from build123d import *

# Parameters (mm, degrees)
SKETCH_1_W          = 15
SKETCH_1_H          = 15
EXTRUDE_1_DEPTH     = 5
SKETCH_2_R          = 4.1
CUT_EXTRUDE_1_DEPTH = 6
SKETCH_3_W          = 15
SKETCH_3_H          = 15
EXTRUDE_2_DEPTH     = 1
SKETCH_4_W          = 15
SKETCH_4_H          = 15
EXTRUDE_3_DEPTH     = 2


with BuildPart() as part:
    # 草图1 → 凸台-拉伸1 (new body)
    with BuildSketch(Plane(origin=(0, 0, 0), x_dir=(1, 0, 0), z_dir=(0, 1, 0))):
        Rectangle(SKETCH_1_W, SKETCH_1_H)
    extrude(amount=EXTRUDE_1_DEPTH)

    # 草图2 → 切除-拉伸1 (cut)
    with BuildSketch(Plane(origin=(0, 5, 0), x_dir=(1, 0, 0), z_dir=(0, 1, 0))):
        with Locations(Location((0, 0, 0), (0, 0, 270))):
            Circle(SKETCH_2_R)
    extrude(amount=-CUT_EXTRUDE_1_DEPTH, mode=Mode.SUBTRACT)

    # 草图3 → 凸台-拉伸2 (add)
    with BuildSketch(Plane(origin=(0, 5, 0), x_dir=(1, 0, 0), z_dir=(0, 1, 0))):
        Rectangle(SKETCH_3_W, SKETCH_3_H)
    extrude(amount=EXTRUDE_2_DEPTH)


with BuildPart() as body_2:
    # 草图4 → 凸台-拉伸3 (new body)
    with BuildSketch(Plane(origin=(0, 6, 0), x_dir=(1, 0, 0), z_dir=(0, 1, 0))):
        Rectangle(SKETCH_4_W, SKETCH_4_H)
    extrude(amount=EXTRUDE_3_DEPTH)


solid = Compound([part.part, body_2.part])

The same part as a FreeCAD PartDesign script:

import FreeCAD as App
import Part
import Sketcher
Q = App.Units.Quantity


def add_polygon(sketch, points):
    """Adds a closed chain of lines whose ends are joined by coincident constraints."""
    first, n = sketch.GeometryCount, len(points)
    for a, b in zip(points, points[1:] + points[:1]):
        sketch.addGeometry(Part.LineSegment(App.Vector(*a, 0), App.Vector(*b, 0)), False)
    for i in range(n):
        sketch.addConstraint(Sketcher.Constraint("Coincident", first + i, 2, first + (i + 1) % n, 1))

doc = App.newDocument("Part")
body = doc.addObject("PartDesign::Body", "Body")

# Sketch on XZ plane
sketch1 = body.newObject("Sketcher::SketchObject", "Sketch")
sketch1.AttachmentSupport = (doc.getObject("XZ_Plane"), [""])
sketch1.MapMode = "FlatFace"
add_polygon(sketch1, [(-7.5, -7.5), (-7.5, 7.5), (7.5, 7.5), (7.5, -7.5)])  # lines 0-3
sketch1.addConstraint([
    Sketcher.Constraint("Vertical", 0),
    Sketcher.Constraint("Horizontal", 1),
    Sketcher.Constraint("Vertical", 2),
    Sketcher.Constraint("Horizontal", 3),
    Sketcher.Constraint("Symmetric", 0, 2, 2, 2, -1, 1),
    Sketcher.Constraint("Equal", 3, 0),
    Sketcher.Constraint("DistanceX", 1, 1, 1, 2, Q("15 mm")),
])
pad1 = body.newObject("PartDesign::Pad", "Pad")
pad1.Profile = sketch1
pad1.Length = 5
pad1.Reversed = True

# Sketch on XZ plane
sketch2 = body.newObject("Sketcher::SketchObject", "Sketch001")
sketch2.AttachmentSupport = (doc.getObject("XZ_Plane"), [""])
sketch2.MapMode = "FlatFace"
sketch2.AttachmentOffset = App.Placement(App.Vector(0, 0, -5), App.Rotation())
sketch2.addGeometry(Part.Circle(App.Vector(0, 0, 0), App.Vector(0, 0, 1), 4.1), False)
sketch2.addConstraint([
    Sketcher.Constraint("Coincident", 0, 3, -1, 1),
    Sketcher.Constraint("Diameter", 0, Q("8.2 mm")),
])
pocket1 = body.newObject("PartDesign::Pocket", "Pocket")
pocket1.Profile = sketch2
pocket1.Length = 6
pocket1.Reversed = True

# Sketch on XZ plane
sketch3 = body.newObject("Sketcher::SketchObject", "Sketch002")
sketch3.AttachmentSupport = (doc.getObject("XZ_Plane"), [""])
sketch3.MapMode = "FlatFace"
sketch3.AttachmentOffset = App.Placement(App.Vector(0, 0, -5), App.Rotation())
add_polygon(sketch3, [(-7.5, -7.5), (-7.5, 7.5), (7.5, 7.5), (7.5, -7.5)])  # lines 0-3
sketch3.addConstraint([
    Sketcher.Constraint("Vertical", 0),
    Sketcher.Constraint("Horizontal", 1),
    Sketcher.Constraint("Vertical", 2),
    Sketcher.Constraint("Horizontal", 3),
    Sketcher.Constraint("Symmetric", 0, 2, 2, 2, -1, 1),
    Sketcher.Constraint("Equal", 3, 0),
    Sketcher.Constraint("DistanceX", 1, 1, 1, 2, Q("15 mm")),
])
pad2 = body.newObject("PartDesign::Pad", "Pad001")
pad2.Profile = sketch3
pad2.Length = 1
pad2.Reversed = True
body2 = doc.addObject("PartDesign::Body", "Body001")

# Sketch on XZ plane
sketch4 = body2.newObject("Sketcher::SketchObject", "Sketch003")
sketch4.AttachmentSupport = (doc.getObject("XZ_Plane001"), [""])
sketch4.MapMode = "FlatFace"
sketch4.AttachmentOffset = App.Placement(App.Vector(0, 0, -6), App.Rotation())
add_polygon(sketch4, [(-7.5, -7.5), (-7.5, 7.5), (7.5, 7.5), (7.5, -7.5)])  # lines 0-3
sketch4.addConstraint([
    Sketcher.Constraint("Vertical", 0),
    Sketcher.Constraint("Horizontal", 1),
    Sketcher.Constraint("Vertical", 2),
    Sketcher.Constraint("Horizontal", 3),
    Sketcher.Constraint("Symmetric", 0, 2, 2, 2, -1, 1),
    Sketcher.Constraint("Equal", 3, 0),
    Sketcher.Constraint("DistanceX", 1, 1, 1, 2, Q("15 mm")),
])
pad3 = body2.newObject("PartDesign::Pad", "Pad002")
pad3.Profile = sketch4
pad3.Length = 2
pad3.Reversed = True

doc.recompute()
